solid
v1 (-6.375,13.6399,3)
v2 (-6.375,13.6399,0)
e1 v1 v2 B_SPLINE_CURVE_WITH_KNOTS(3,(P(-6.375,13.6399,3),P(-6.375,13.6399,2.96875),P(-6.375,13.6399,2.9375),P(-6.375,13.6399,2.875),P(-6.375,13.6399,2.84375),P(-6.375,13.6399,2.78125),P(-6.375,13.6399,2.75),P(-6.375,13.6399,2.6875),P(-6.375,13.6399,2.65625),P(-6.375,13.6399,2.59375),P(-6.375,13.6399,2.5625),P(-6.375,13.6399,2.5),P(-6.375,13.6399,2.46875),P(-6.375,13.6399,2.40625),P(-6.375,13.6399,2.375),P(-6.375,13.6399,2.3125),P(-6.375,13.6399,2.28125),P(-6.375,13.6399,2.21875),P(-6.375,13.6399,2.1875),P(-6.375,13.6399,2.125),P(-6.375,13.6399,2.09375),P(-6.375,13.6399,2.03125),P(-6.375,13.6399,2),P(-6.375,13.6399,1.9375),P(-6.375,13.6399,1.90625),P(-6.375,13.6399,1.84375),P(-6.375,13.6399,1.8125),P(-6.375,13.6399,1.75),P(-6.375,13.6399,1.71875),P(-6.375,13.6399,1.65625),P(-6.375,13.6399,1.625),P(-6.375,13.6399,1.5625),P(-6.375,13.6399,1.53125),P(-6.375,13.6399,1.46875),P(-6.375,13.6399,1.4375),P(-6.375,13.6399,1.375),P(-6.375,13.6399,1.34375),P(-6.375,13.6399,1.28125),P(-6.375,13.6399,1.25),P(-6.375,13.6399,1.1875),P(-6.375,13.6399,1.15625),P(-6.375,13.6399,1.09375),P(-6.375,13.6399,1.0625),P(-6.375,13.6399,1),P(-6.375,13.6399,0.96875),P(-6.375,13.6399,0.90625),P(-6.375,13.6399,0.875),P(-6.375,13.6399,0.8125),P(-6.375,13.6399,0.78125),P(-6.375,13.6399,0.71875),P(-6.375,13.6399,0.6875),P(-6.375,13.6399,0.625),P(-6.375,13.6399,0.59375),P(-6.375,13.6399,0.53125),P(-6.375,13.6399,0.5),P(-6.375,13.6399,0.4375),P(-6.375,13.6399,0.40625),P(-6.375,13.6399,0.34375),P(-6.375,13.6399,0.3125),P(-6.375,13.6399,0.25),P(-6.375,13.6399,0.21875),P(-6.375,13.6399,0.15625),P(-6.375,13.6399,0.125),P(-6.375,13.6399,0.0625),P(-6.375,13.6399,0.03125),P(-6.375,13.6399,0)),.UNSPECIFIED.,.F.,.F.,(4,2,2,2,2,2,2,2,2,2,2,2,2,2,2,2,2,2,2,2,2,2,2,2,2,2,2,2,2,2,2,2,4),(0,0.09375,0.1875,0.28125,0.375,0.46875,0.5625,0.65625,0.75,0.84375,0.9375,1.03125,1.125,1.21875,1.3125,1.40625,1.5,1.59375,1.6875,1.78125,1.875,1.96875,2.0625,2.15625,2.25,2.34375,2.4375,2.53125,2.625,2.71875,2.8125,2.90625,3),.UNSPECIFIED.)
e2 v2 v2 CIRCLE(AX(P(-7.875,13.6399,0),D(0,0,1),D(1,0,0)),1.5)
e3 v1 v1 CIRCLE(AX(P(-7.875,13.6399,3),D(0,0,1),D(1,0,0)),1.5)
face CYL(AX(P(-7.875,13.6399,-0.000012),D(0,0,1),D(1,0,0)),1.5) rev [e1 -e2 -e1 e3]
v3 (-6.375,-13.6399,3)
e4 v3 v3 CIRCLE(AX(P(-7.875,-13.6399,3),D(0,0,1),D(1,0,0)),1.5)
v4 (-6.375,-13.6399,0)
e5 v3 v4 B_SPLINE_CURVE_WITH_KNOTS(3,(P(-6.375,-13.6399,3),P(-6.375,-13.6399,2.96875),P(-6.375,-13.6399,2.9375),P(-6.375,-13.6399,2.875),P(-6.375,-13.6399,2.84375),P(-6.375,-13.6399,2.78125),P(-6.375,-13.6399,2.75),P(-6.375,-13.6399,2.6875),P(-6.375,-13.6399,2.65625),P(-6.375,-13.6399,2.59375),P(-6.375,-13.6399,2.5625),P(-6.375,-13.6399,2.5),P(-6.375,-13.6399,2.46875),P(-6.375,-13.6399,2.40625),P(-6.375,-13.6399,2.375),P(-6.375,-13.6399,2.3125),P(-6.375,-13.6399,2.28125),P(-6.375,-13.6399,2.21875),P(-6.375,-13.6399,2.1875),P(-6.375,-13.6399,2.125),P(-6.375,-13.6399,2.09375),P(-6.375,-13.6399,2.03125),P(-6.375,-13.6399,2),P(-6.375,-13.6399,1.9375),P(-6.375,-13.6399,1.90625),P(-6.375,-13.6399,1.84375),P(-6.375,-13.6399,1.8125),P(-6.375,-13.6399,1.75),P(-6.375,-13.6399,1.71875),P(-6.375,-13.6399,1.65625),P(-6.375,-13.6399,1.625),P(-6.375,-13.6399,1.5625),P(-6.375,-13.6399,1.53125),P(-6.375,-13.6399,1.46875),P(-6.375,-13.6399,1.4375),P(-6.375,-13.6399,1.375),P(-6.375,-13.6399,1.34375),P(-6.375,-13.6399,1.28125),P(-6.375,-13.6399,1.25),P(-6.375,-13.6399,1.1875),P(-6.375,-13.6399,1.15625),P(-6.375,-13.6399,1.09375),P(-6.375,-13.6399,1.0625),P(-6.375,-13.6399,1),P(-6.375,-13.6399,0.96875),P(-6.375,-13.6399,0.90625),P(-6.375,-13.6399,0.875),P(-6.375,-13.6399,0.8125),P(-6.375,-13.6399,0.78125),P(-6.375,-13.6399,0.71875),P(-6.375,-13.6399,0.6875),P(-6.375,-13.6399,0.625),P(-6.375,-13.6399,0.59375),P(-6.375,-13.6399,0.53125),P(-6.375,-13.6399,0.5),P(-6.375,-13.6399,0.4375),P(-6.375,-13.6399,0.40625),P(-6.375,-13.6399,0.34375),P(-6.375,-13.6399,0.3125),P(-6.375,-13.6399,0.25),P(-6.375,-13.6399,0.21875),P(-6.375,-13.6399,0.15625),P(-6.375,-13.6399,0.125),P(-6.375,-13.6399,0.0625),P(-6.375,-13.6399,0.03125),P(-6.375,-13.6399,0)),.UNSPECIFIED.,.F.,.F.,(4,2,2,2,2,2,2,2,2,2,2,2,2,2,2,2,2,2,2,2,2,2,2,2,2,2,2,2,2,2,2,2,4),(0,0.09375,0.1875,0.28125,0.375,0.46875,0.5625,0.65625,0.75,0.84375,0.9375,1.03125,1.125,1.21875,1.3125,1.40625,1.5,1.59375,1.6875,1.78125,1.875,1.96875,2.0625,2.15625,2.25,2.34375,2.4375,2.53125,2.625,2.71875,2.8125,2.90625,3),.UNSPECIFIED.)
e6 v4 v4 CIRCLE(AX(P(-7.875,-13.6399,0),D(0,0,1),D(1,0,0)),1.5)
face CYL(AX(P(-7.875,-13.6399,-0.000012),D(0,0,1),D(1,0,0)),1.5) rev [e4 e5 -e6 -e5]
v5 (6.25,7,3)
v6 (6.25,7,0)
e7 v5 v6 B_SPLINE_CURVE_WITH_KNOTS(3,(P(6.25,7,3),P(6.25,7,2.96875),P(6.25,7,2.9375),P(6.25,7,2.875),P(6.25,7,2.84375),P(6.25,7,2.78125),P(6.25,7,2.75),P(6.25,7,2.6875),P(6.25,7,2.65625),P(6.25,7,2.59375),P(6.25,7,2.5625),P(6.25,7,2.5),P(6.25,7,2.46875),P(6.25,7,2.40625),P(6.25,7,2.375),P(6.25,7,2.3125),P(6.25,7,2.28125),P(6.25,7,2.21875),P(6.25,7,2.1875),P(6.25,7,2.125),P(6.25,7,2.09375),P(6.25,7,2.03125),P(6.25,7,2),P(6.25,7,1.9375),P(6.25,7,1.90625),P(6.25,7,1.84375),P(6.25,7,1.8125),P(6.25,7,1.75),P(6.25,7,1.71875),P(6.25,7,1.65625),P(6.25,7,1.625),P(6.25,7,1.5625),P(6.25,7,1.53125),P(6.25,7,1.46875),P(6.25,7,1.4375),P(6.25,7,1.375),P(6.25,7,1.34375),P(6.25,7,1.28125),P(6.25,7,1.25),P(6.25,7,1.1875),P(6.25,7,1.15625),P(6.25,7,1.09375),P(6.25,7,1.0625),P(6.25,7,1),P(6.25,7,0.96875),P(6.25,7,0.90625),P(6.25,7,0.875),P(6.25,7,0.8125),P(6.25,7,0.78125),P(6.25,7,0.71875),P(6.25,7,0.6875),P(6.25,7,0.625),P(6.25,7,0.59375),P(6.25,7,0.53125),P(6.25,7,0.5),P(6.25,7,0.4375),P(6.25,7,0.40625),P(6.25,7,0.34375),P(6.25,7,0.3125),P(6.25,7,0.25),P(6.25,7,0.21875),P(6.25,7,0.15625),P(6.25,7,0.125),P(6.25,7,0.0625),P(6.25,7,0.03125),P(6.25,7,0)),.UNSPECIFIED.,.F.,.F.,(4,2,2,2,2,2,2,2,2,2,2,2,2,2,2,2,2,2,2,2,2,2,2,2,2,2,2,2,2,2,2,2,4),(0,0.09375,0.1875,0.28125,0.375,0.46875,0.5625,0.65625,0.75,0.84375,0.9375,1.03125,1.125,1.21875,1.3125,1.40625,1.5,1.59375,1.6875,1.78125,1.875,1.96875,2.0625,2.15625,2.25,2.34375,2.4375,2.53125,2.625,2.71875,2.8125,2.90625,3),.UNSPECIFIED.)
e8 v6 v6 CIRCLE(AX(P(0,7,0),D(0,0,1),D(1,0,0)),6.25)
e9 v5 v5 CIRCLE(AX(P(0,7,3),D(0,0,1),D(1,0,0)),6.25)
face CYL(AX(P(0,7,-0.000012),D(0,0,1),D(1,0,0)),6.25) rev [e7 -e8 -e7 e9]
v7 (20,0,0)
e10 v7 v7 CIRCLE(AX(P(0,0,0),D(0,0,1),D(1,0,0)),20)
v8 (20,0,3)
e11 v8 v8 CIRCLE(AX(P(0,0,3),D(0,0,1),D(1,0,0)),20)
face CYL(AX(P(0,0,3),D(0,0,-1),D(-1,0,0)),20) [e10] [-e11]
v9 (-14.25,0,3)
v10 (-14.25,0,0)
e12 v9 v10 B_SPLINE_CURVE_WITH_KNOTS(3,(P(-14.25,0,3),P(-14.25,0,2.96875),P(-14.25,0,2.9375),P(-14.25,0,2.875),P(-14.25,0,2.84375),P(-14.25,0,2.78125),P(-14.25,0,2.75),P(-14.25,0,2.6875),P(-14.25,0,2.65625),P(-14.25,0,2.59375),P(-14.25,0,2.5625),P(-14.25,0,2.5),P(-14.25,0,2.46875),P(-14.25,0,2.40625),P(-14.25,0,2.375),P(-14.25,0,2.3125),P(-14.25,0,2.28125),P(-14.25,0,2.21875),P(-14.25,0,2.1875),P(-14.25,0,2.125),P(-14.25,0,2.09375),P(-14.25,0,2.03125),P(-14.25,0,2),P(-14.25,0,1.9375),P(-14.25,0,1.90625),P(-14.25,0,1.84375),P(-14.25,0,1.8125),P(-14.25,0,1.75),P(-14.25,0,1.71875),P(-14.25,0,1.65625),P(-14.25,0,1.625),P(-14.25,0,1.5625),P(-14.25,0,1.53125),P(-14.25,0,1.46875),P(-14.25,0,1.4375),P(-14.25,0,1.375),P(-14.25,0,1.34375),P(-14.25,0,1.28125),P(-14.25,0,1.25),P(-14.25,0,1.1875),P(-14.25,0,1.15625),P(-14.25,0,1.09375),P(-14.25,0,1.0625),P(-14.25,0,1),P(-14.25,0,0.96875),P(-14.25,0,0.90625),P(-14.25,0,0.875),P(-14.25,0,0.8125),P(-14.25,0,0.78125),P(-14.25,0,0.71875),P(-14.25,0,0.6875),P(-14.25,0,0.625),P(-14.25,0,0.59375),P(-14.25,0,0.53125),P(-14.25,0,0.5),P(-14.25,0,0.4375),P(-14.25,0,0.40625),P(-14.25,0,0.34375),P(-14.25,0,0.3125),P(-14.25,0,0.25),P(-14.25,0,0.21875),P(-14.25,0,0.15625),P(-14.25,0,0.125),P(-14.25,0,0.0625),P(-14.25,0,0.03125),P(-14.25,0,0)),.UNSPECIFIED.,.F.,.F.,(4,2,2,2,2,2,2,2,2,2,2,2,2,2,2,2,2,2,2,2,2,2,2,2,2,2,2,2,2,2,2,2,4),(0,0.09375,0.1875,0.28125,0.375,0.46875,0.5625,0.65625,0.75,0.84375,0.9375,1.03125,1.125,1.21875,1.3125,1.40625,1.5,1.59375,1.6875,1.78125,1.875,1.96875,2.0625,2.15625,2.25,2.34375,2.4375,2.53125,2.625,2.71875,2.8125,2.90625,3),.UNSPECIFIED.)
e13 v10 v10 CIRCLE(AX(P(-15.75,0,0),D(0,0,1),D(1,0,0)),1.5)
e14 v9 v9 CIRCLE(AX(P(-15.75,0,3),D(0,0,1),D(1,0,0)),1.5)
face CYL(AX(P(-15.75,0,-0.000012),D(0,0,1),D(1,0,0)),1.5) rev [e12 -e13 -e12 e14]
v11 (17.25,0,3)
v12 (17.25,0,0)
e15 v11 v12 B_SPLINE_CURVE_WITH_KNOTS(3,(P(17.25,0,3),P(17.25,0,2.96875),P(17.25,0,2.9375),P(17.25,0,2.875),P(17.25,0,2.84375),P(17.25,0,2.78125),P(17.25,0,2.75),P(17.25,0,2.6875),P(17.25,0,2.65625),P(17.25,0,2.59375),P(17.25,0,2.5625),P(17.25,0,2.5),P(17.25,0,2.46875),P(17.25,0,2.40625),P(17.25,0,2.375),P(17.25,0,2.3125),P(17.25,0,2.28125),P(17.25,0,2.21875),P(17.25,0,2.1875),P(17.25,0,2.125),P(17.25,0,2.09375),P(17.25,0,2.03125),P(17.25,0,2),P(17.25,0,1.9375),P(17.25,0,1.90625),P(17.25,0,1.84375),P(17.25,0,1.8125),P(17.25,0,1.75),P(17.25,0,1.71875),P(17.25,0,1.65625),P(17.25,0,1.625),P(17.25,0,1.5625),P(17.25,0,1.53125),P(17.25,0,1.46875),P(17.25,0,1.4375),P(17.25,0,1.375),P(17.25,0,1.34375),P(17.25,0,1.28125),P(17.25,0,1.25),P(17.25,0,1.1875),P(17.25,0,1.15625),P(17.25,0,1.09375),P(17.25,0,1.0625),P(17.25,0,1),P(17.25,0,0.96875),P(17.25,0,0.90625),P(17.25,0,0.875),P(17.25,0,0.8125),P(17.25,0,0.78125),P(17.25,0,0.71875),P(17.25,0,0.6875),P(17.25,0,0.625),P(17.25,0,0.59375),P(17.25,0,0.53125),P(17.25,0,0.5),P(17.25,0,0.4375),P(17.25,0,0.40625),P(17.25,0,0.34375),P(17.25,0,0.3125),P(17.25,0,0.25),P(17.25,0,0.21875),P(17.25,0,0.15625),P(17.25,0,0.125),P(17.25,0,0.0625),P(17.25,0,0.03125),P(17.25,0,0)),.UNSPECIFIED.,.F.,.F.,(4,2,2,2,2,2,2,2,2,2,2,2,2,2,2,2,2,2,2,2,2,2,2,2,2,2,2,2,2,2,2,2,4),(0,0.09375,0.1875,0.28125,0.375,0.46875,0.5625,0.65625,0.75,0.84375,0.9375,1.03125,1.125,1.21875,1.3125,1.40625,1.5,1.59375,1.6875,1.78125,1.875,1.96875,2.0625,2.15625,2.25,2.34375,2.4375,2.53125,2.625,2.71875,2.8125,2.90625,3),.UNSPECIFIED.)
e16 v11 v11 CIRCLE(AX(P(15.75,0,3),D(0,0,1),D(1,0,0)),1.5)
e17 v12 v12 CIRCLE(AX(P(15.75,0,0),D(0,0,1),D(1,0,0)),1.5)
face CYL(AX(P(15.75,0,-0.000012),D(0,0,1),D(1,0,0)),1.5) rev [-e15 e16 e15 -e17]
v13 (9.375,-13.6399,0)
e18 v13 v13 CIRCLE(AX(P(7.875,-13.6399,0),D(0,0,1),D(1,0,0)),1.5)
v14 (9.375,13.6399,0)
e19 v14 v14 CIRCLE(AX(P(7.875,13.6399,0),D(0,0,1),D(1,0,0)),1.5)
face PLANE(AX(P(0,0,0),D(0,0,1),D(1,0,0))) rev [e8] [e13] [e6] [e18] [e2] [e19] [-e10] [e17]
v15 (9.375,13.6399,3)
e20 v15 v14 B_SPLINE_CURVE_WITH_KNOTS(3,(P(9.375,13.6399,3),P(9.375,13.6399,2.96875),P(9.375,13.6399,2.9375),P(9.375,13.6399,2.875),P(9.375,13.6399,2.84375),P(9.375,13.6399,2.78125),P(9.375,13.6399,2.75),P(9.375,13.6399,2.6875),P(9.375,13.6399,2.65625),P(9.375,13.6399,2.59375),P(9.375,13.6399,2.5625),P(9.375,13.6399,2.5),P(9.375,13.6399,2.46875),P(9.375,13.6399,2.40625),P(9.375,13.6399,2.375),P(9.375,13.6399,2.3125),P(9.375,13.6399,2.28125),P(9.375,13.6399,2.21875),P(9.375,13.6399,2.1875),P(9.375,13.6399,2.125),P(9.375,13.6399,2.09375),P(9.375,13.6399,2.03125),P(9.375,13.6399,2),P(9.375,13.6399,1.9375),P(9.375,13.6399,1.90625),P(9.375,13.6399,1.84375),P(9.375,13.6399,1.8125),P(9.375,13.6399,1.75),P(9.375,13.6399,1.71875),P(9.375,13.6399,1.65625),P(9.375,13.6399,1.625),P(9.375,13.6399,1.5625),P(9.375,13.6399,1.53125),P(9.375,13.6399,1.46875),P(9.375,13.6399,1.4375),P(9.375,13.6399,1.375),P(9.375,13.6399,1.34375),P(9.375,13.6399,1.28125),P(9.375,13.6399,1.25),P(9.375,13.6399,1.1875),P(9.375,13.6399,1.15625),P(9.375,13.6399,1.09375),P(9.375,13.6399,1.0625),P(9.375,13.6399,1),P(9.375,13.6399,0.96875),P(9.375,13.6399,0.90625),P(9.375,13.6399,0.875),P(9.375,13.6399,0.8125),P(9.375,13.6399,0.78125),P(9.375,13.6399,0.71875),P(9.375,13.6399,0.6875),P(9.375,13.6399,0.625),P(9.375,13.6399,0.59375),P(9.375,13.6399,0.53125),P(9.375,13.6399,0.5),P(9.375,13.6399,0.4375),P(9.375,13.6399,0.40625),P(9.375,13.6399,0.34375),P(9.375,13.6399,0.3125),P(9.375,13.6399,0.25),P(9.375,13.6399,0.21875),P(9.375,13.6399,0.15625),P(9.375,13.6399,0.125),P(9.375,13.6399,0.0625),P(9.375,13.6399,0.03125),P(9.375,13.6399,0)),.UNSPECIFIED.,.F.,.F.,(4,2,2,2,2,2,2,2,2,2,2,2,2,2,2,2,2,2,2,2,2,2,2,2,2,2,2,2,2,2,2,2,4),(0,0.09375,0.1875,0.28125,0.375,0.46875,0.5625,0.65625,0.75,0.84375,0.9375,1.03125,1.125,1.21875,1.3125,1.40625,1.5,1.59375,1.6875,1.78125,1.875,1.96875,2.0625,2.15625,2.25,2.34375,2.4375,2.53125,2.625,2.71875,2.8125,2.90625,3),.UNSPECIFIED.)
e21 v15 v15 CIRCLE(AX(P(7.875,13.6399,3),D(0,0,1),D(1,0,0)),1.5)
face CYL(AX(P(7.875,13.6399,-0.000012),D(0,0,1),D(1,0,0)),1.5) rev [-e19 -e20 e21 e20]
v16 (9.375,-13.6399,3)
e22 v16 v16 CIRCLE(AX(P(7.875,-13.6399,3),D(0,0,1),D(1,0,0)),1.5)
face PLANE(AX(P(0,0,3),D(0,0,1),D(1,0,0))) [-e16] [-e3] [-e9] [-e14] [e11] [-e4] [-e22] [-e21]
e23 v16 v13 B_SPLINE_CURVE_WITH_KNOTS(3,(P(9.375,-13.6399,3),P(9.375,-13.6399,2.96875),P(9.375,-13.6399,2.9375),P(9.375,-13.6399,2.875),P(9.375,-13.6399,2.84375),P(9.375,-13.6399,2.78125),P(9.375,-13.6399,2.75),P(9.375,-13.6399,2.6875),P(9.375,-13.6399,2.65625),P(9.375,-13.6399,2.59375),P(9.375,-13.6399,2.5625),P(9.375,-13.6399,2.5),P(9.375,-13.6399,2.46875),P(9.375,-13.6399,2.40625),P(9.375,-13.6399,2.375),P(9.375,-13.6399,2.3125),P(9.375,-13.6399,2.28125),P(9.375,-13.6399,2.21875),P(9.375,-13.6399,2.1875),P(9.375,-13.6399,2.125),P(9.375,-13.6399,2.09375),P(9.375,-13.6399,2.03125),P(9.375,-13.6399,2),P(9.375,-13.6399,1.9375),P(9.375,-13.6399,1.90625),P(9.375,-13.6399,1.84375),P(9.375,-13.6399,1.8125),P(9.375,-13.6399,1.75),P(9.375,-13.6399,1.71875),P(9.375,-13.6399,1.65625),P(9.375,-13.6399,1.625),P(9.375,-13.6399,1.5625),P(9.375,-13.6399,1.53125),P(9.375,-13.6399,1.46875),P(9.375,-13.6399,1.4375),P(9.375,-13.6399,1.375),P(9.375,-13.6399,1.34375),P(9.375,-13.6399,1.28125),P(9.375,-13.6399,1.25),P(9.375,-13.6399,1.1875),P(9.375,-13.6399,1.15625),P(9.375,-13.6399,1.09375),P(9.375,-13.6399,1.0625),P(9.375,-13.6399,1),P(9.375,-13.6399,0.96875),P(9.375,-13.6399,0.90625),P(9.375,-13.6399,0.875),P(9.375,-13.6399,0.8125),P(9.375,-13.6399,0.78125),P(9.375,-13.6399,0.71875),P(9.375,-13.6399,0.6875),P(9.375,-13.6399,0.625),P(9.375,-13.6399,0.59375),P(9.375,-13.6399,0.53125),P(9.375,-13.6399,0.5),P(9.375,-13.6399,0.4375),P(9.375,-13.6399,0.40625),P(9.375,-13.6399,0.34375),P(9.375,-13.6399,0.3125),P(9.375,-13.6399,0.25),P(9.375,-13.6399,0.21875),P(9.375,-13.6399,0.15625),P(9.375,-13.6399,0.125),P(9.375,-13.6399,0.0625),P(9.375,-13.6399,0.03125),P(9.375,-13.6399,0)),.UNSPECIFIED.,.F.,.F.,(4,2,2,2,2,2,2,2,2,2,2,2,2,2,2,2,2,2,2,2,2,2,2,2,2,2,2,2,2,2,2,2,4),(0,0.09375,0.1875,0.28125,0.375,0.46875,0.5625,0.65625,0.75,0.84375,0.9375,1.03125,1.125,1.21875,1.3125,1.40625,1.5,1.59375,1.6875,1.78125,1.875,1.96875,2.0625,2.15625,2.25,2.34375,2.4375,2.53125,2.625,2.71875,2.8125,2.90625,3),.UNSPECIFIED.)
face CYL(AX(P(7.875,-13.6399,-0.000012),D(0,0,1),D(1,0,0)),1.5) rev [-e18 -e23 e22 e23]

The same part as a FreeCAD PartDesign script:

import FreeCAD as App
import Part
import Sketcher

V = App.Vector
Q = App.Units.Quantity

doc = App.newDocument("Part")
body = doc.addObject("PartDesign::Body", "Body")

# Sketch on XY plane
sketch1 = body.newObject("Sketcher::SketchObject", "Sketch")
sketch1.AttachmentSupport = (doc.getObject("XY_Plane"), [""])
sketch1.MapMode = "FlatFace"
sketch1.addGeometry(Part.Circle(V(0, 0, 0), V(0, 0, 1), 20), False)
sketch1.addConstraint([
    Sketcher.Constraint("Coincident", 0, 3, -1, 1),
    Sketcher.Constraint("Diameter", 0, Q("40 mm")),
])
pad1 = body.newObject("PartDesign::Pad", "Pad")
pad1.Profile = sketch1
pad1.Length = 3

# Sketch on XY plane
sketch2 = body.newObject("Sketcher::SketchObject", "Sketch001")
sketch2.AttachmentSupport = (doc.getObject("XY_Plane"), [""])
sketch2.MapMode = "FlatFace"
sketch2.addGeometry([
    Part.Circle(V(-15.8, 0, 0), V(0, 0, 1), 1.5),  # 0
    Part.Circle(V(-7.9, 13.6, 0), V(0, 0, 1), 1.5),  # 1
    Part.Circle(V(7.9, 13.6, 0), V(0, 0, 1), 1.5),  # 2
    Part.Circle(V(15.8, 0, 0), V(0, 0, 1), 1.5),  # 3
    Part.Circle(V(7.9, -13.6, 0), V(0, 0, 1), 1.5),  # 4
    Part.Circle(V(-7.9, -13.6, 0), V(0, 0, 1), 1.5),  # 5
    Part.Circle(V(0, 7, 0), V(0, 0, 1), 6.2),  # 6
], False)
sketch2.addConstraint([
    Sketcher.Constraint("Equal", 0, 1),
    Sketcher.Constraint("Equal", 1, 2),
    Sketcher.Constraint("Equal", 2, 3),
    Sketcher.Constraint("Equal", 3, 4),
    Sketcher.Constraint("Equal", 4, 5),
    Sketcher.Constraint("Symmetric", 0, 3, 3, 3, -1, 1),
    Sketcher.Constraint("Symmetric", 1, 3, 4, 3, -1, 1),
    Sketcher.Constraint("Symmetric", 2, 3, 5, 3, -1, 1),
    Sketcher.Constraint("Symmetric", 1, 3, 2, 3, -2),
    Sketcher.Constraint("PointOnObject", 0, 3, -1),
    Sketcher.Constraint("PointOnObject", 6, 3, -2),
    Sketcher.Constraint("Diameter", 0, Q("3 mm")),
    Sketcher.Constraint("Diameter", 6, Q("12.5 mm")),
    Sketcher.Constraint("DistanceY", -1, 1, 6, 3, Q("7 mm")),
    Sketcher.Constraint("DistanceX", 0, 3, 3, 3, Q("31.5 mm")),
    Sketcher.Constraint("DistanceX", 1, 3, 2, 3, Q("15.75 mm")),
    Sketcher.Constraint("DistanceY", -1, 1, 1, 3, Q("13.6399 mm")),
])
pocket1 = body.newObject("PartDesign::Pocket", "Pocket")
pocket1.Profile = sketch2
pocket1.Type = "ThroughAll"
pocket1.Midplane = True

doc.recompute()
